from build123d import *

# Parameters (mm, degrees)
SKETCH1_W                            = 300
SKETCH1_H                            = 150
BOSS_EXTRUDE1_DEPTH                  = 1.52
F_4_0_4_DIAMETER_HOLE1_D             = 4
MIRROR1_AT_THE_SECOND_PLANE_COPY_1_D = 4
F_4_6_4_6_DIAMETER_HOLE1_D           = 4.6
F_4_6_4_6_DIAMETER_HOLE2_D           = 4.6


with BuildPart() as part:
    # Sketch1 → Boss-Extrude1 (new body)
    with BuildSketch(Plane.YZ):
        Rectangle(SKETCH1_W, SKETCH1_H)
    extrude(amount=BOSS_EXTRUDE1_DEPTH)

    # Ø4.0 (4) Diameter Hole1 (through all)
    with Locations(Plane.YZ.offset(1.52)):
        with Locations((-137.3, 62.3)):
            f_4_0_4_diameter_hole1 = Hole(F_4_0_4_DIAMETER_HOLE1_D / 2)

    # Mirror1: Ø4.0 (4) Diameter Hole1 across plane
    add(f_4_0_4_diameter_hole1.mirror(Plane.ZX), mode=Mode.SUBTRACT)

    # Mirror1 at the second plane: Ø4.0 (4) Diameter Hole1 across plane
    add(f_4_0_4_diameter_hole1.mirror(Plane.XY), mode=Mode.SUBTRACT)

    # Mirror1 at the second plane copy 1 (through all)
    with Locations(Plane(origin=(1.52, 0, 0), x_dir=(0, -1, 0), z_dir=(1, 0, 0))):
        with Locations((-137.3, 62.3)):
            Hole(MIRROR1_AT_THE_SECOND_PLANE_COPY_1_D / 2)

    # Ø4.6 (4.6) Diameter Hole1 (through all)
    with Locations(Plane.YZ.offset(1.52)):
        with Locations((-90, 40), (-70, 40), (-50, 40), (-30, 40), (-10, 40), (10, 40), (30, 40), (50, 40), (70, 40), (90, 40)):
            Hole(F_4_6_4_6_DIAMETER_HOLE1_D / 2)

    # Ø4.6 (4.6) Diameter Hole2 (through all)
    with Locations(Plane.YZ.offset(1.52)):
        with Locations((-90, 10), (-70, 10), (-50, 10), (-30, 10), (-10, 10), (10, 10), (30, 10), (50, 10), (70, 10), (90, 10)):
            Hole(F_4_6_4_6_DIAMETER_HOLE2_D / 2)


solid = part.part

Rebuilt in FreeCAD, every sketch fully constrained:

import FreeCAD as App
import Part
import Sketcher
from FreeCAD import Vector


def add_polygon(sketch, points):
    """Adds a closed chain of lines whose ends are joined by coincident constraints."""
    first, n = sketch.GeometryCount, len(points)
    for a, b in zip(points, points[1:] + points[:1]):
        sketch.addGeometry(Part.LineSegment(App.Vector(*a, 0), App.Vector(*b, 0)), False)
    for i in range(n):
        sketch.addConstraint(Sketcher.Constraint("Coincident", first + i, 2, first + (i + 1) % n, 1))

doc = App.newDocument("Part")
body = doc.addObject("PartDesign::Body", "Body")

# Sketch on YZ plane
sketch1 = body.newObject("Sketcher::SketchObject", "Sketch")
sketch1.AttachmentSupport = (doc.getObject("YZ_Plane"), [""])
sketch1.MapMode = "FlatFace"
add_polygon(sketch1, [(-150, 75), (-150, -75), (150, -75), (150, 75)])  # lines 0-3
sketch1.addConstraint(Sketcher.Constraint("Vertical", 0))
sketch1.addConstraint(Sketcher.Constraint("Horizontal", 1))
sketch1.addConstraint(Sketcher.Constraint("Vertical", 2))
sketch1.addConstraint(Sketcher.Constraint("Horizontal", 3))
sketch1.addConstraint(Sketcher.Constraint("Symmetric", 0, 2, 2, 2, -1, 1))
sketch1.addConstraint(Sketcher.Constraint("DistanceX", 1, 1, 1, 2, 300.0))
sketch1.addConstraint(Sketcher.Constraint("DistanceY", 0, 2, 0, 1, 150.0))
pad1 = body.newObject("PartDesign::Pad", "Pad")
pad1.Profile = sketch1
pad1.Length = 1.52

# Sketch on YZ plane
sketch2 = body.newObject("Sketcher::SketchObject", "Sketch001")
sketch2.AttachmentSupport = (doc.getObject("YZ_Plane"), [""])
sketch2.MapMode = "FlatFace"
sketch2.AttachmentOffset = App.Placement(Vector(0, 0, 1.52), App.Rotation())
sketch2.addGeometry(Part.Circle(Vector(-137.3, 62.3, 0), Vector(0, 0, 1), 2), False)
sketch2.addConstraint(Sketcher.Constraint("Diameter", 0, 4.0))
sketch2.addConstraint(Sketcher.Constraint("DistanceX", 0, 3, -1, 1, 137.3))
sketch2.addConstraint(Sketcher.Constraint("DistanceY", -1, 1, 0, 3, 62.3))
doc.recompute()
hole = body.newObject("PartDesign::Hole", "Hole")
hole.Profile = sketch2
hole.ThreadType = "None"
hole.Diameter = 4
hole.DepthType = "ThroughAll"
doc.recompute()

mirrored = body.newObject("PartDesign::Mirrored", "Mirrored")
mirrored.Originals = [hole]
mirrored.MirrorPlane = (doc.getObject("XZ_Plane"), [""])
body.Tip = mirrored
doc.recompute()

mirrored2 = body.newObject("PartDesign::Mirrored", "Mirrored001")
mirrored2.Originals = [hole]
mirrored2.MirrorPlane = (doc.getObject("XY_Plane"), [""])
body.Tip = mirrored2

# Sketch on YZ plane
sketch3 = body.newObject("Sketcher::SketchObject", "Sketch002")
sketch3.AttachmentSupport = (doc.getObject("YZ_Plane"), [""])
sketch3.MapMode = "FlatFace"
sketch3.AttachmentOffset = App.Placement(Vector(0, 0, 1.52), App.Rotation())
sketch3.addGeometry(Part.Circle(Vector(137.3, -62.3, 0), Vector(0, 0, 1), 2), False)
sketch3.addConstraint(Sketcher.Constraint("Diameter", 0, 4.0))
sketch3.addConstraint(Sketcher.Constraint("DistanceX", -1, 1, 0, 3, 137.3))
sketch3.addConstraint(Sketcher.Constraint("DistanceY", 0, 3, -1, 1, 62.3))
doc.recompute()
hole2 = body.newObject("PartDesign::Hole", "Hole001")
hole2.Profile = sketch3
hole2.ThreadType = "None"
hole2.Diameter = 4
hole2.DepthType = "ThroughAll"

# Sketch on YZ plane
sketch4 = body.newObject("Sketcher::SketchObject", "Sketch003")
sketch4.AttachmentSupport = (doc.getObject("YZ_Plane"), [""])
sketch4.MapMode = "FlatFace"
sketch4.AttachmentOffset = App.Placement(Vector(0, 0, 1.52), App.Rotation())
sketch4.addGeometry(Part.Circle(Vector(-90, 40, 0), Vector(0, 0, 1), 2.3), False)
sketch4.addGeometry(Part.Circle(Vector(-70, 40, 0), Vector(0, 0, 1), 2.3), False)
sketch4.addGeometry(Part.Circle(Vector(-50, 40, 0), Vector(0, 0, 1), 2.3), False)
sketch4.addGeometry(Part.Circle(Vector(-30, 40, 0), Vector(0, 0, 1), 2.3), False)
sketch4.addGeometry(Part.Circle(Vector(-10, 40, 0), Vector(0, 0, 1), 2.3), False)
sketch4.addGeometry(Part.Circle(Vector(10, 40, 0), Vector(0, 0, 1), 2.3), False)
sketch4.addGeometry(Part.Circle(Vector(30, 40, 0), Vector(0, 0, 1), 2.3), False)
sketch4.addGeometry(Part.Circle(Vector(50, 40, 0), Vector(0, 0, 1), 2.3), False)
sketch4.addGeometry(Part.Circle(Vector(70, 40, 0), Vector(0, 0, 1), 2.3), False)
sketch4.addGeometry(Part.Circle(Vector(90, 40, 0), Vector(0, 0, 1), 2.3), False)
sketch4.addConstraint(Sketcher.Constraint("Equal", 0, 1))
sketch4.addConstraint(Sketcher.Constraint("Equal", 1, 2))
sketch4.addConstraint(Sketcher.Constraint("Equal", 2, 3))
sketch4.addConstraint(Sketcher.Constraint("Equal", 3, 4))
sketch4.addConstraint(Sketcher.Constraint("Equal", 4, 5))
sketch4.addConstraint(Sketcher.Constraint("Equal", 5, 6))
sketch4.addConstraint(Sketcher.Constraint("Equal", 6, 7))
sketch4.addConstraint(Sketcher.Constraint("Equal", 7, 8))
sketch4.addConstraint(Sketcher.Constraint("Equal", 8, 9))
sketch4.addConstraint(Sketcher.Constraint("Symmetric", 4, 3, 5, 3, -2))
sketch4.addConstraint(Sketcher.Constraint("Symmetric", 3, 3, 6, 3, -2))
sketch4.addConstraint(Sketcher.Constraint("Symmetric", 2, 3, 7, 3, -2))
sketch4.addConstraint(Sketcher.Constraint("Symmetric", 1, 3, 8, 3, -2))
sketch4.addConstraint(Sketcher.Constraint("Symmetric", 0, 3, 9, 3, -2))
sketch4.addConstraint(Sketcher.Constraint("Horizontal", 0, 3, 1, 3))
sketch4.addConstraint(Sketcher.Constraint("Horizontal", 1, 3, 2, 3))
sketch4.addConstraint(Sketcher.Constraint("Horizontal", 2, 3, 3, 3))
sketch4.addConstraint(Sketcher.Constraint("Horizontal", 3, 3, 4, 3))
sketch4.addConstraint(Sketcher.Constraint("Diameter", 0, 4.6))
sketch4.addConstraint(Sketcher.Constraint("DistanceX", 0, 3, -1, 1, 90.0))
sketch4.addConstraint(Sketcher.Constraint("DistanceY", -1, 1, 0, 3, 40.0))
sketch4.addConstraint(Sketcher.Constraint("DistanceX", 1, 3, -1, 1, 70.0))
sketch4.addConstraint(Sketcher.Constraint("DistanceX", 2, 3, -1, 1, 50.0))
sketch4.addConstraint(Sketcher.Constraint("DistanceX", 3, 3, -1, 1, 30.0))
sketch4.addConstraint(Sketcher.Constraint("DistanceX", 4, 3, -1, 1, 10.0))
doc.recompute()
hole3 = body.newObject("PartDesign::Hole", "Hole002")
hole3.Profile = sketch4
hole3.ThreadType = "None"
hole3.Diameter = 4.6
hole3.DepthType = "ThroughAll"

# Sketch on YZ plane
sketch5 = body.newObject("Sketcher::SketchObject", "Sketch004")
sketch5.AttachmentSupport = (doc.getObject("YZ_Plane"), [""])
sketch5.MapMode = "FlatFace"
sketch5.AttachmentOffset = App.Placement(Vector(0, 0, 1.52), App.Rotation())
sketch5.addGeometry(Part.Circle(Vector(-90, 10, 0), Vector(0, 0, 1), 2.3), False)
sketch5.addGeometry(Part.Circle(Vector(-70, 10, 0), Vector(0, 0, 1), 2.3), False)
sketch5.addGeometry(Part.Circle(Vector(-50, 10, 0), Vector(0, 0, 1), 2.3), False)
sketch5.addGeometry(Part.Circle(Vector(-30, 10, 0), Vector(0, 0, 1), 2.3), False)
sketch5.addGeometry(Part.Circle(Vector(-10, 10, 0), Vector(0, 0, 1), 2.3), False)
sketch5.addGeometry(Part.Circle(Vector(10, 10, 0), Vector(0, 0, 1), 2.3), False)
sketch5.addGeometry(Part.Circle(Vector(30, 10, 0), Vector(0, 0, 1), 2.3), False)
sketch5.addGeometry(Part.Circle(Vector(50, 10, 0), Vector(0, 0, 1), 2.3), False)
sketch5.addGeometry(Part.Circle(Vector(70, 10, 0), Vector(0, 0, 1), 2.3), False)
sketch5.addGeometry(Part.Circle(Vector(90, 10, 0), Vector(0, 0, 1), 2.3), False)
sketch5.addConstraint(Sketcher.Constraint("Equal", 0, 1))
sketch5.addConstraint(Sketcher.Constraint("Equal", 1, 2))
sketch5.addConstraint(Sketcher.Constraint("Equal", 2, 3))
sketch5.addConstraint(Sketcher.Constraint("Equal", 3, 4))
sketch5.addConstraint(Sketcher.Constraint("Equal", 4, 5))
sketch5.addConstraint(Sketcher.Constraint("Equal", 5, 6))
sketch5.addConstraint(Sketcher.Constraint("Equal", 6, 7))
sketch5.addConstraint(Sketcher.Constraint("Equal", 7, 8))
sketch5.addConstraint(Sketcher.Constraint("Equal", 8, 9))
sketch5.addConstraint(Sketcher.Constraint("Symmetric", 4, 3, 5, 3, -2))
sketch5.addConstraint(Sketcher.Constraint("Symmetric", 3, 3, 6, 3, -2))
sketch5.addConstraint(Sketcher.Constraint("Symmetric", 2, 3, 7, 3, -2))
sketch5.addConstraint(Sketcher.Constraint("Symmetric", 1, 3, 8, 3, -2))
sketch5.addConstraint(Sketcher.Constraint("Symmetric", 0, 3, 9, 3, -2))
sketch5.addConstraint(Sketcher.Constraint("Horizontal", 0, 3, 1, 3))
sketch5.addConstraint(Sketcher.Constraint("Horizontal", 1, 3, 2, 3))
sketch5.addConstraint(Sketcher.Constraint("Horizontal", 2, 3, 3, 3))
sketch5.addConstraint(Sketcher.Constraint("Horizontal", 3, 3, 4, 3))
sketch5.addConstraint(Sketcher.Constraint("Diameter", 0, 4.6))
sketch5.addConstraint(Sketcher.Constraint("DistanceX", 0, 3, -1, 1, 90.0))
sketch5.addConstraint(Sketcher.Constraint("DistanceY", -1, 1, 0, 3, 10.0))
sketch5.addConstraint(Sketcher.Constraint("DistanceX", 1, 3, -1, 1, 70.0))
sketch5.addConstraint(Sketcher.Constraint("DistanceX", 2, 3, -1, 1, 50.0))
sketch5.addConstraint(Sketcher.Constraint("DistanceX", 3, 3, -1, 1, 30.0))
sketch5.addConstraint(Sketcher.Constraint("DistanceX", 4, 3, -1, 1, 10.0))
doc.recompute()
hole4 = body.newObject("PartDesign::Hole", "Hole003")
hole4.Profile = sketch5
hole4.ThreadType = "None"
hole4.Diameter = 4.6
hole4.DepthType = "ThroughAll"

doc.recompute()
